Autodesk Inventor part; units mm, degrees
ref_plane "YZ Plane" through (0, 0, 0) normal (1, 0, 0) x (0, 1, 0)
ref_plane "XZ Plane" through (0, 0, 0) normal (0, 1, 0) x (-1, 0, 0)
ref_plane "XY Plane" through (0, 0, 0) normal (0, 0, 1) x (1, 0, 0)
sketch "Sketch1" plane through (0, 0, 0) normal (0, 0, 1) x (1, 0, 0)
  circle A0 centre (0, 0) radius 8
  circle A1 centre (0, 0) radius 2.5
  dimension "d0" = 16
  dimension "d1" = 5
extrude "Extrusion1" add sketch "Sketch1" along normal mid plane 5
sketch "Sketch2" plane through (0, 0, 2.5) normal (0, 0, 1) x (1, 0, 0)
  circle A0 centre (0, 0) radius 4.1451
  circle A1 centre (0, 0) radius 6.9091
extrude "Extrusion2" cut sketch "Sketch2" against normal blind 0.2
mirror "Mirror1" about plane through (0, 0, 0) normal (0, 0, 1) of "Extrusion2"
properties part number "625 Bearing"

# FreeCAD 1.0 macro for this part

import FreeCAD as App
import Part
import Sketcher
Q = App.Units.Quantity

doc = App.newDocument("Part")
body = doc.addObject("PartDesign::Body", "Body")

# Sketch on XY plane
sketch1 = body.newObject("Sketcher::SketchObject", "Sketch")
sketch1.AttachmentSupport = (doc.getObject("XY_Plane"), [""])
sketch1.MapMode = "FlatFace"
sketch1.addGeometry([
    Part.Circle(App.Vector(0, 0, 0), App.Vector(0, 0, 1), 8),
    Part.Circle(App.Vector(0, 0, 0), App.Vector(0, 0, 1), 2.5),
], False)
sketch1.addConstraint([
    Sketcher.Constraint("Coincident", 0, 3, -1, 1),
    Sketcher.Constraint("Coincident", 1, 3, -1, 1),
    Sketcher.Constraint("Diameter", 0, Q("16 mm")),
    Sketcher.Constraint("Diameter", 1, Q("5 mm")),
])
pad1 = body.newObject("PartDesign::Pad", "Pad")
pad1.Profile = sketch1
pad1.Length = 5
pad1.Midplane = True

# Sketch on XY plane
sketch2 = body.newObject("Sketcher::SketchObject", "Sketch001")
sketch2.AttachmentSupport = (doc.getObject("XY_Plane"), [""])
sketch2.MapMode = "FlatFace"
sketch2.AttachmentOffset = App.Placement(App.Vector(0, 0, 2.5), App.Rotation())
sketch2.addGeometry([
    Part.Circle(App.Vector(0, 0, 0), App.Vector(0, 0, 1), 6.9),
    Part.Circle(App.Vector(0, 0, 0), App.Vector(0, 0, 1), 4.1),
], False)
sketch2.addConstraint([
    Sketcher.Constraint("Coincident", 0, 3, -1, 1),
    Sketcher.Constraint("Coincident", 1, 3, -1, 1),
    Sketcher.Constraint("Diameter", 0, Q("13.8182 mm")),
    Sketcher.Constraint("Diameter", 1, Q("8.2902 mm")),
])
pocket1 = body.newObject("PartDesign::Pocket", "Pocket")
pocket1.Profile = sketch2
pocket1.Length = 0.2
doc.recompute()

mirrored = body.newObject("PartDesign::Mirrored", "Mirrored")
mirrored.Originals = [pocket1]
mirrored.MirrorPlane = (doc.getObject("XY_Plane"), [""])
body.Tip = mirrored

doc.recompute()
